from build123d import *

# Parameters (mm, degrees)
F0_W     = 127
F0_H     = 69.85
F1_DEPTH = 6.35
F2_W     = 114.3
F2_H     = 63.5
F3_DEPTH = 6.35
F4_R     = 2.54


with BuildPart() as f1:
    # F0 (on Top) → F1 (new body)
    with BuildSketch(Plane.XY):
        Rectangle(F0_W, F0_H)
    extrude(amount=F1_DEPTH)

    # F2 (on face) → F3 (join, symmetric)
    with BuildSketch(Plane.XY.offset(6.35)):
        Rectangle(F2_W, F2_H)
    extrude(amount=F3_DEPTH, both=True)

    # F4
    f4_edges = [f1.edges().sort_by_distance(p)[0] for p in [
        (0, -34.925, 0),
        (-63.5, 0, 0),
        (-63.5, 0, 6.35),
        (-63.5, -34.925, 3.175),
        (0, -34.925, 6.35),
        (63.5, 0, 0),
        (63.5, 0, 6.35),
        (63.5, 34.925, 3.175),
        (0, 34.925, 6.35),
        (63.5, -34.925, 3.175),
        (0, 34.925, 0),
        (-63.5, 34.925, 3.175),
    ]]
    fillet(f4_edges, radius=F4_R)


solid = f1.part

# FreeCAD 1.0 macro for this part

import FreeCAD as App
import Part
import Sketcher

V = App.Vector
Q = App.Units.Quantity


def edges_at(feature, points):
    """Names of the edges that pass closest to the given points."""
    edges = feature.Shape.Edges
    near = lambda p: min(range(len(edges)), key=lambda i: edges[i].distToShape(Part.Vertex(*p))[0])
    return sorted({f"Edge{near(p) + 1}" for p in points})


def add_polygon(sketch, points):
    """Adds a closed chain of lines whose ends are joined by coincident constraints."""
    first, n = sketch.GeometryCount, len(points)
    for a, b in zip(points, points[1:] + points[:1]):
        sketch.addGeometry(Part.LineSegment(App.Vector(*a, 0), App.Vector(*b, 0)), False)
    for i in range(n):
        sketch.addConstraint(Sketcher.Constraint("Coincident", first + i, 2, first + (i + 1) % n, 1))

doc = App.newDocument("Part")
body = doc.addObject("PartDesign::Body", "Body")

# Sketch on XY plane
sketch1 = body.newObject("Sketcher::SketchObject", "Sketch")
sketch1.AttachmentSupport = (doc.getObject("XY_Plane"), [""])
sketch1.MapMode = "FlatFace"
add_polygon(sketch1, [(-64, 35), (-64, -35), (64, -35), (64, 35)])  # lines 0-3
sketch1.addConstraint([
    Sketcher.Constraint("Vertical", 0),
    Sketcher.Constraint("Horizontal", 1),
    Sketcher.Constraint("Vertical", 2),
    Sketcher.Constraint("Horizontal", 3),
    Sketcher.Constraint("Symmetric", 0, 2, 2, 2, -1, 1),
    Sketcher.Constraint("DistanceX", 1, 1, 1, 2, Q("5 in")),
    Sketcher.Constraint("DistanceY", 0, 2, 0, 1, Q("2.75 in")),
])
pad1 = body.newObject("PartDesign::Pad", "Pad")
pad1.Profile = sketch1
pad1.Length = Q("0.25 in")

# Sketch on XY plane
sketch2 = body.newObject("Sketcher::SketchObject", "Sketch001")
sketch2.AttachmentSupport = (doc.getObject("XY_Plane"), [""])
sketch2.MapMode = "FlatFace"
sketch2.AttachmentOffset = App.Placement(V(0, 0, 0.25 * 25.4), App.Rotation())
add_polygon(sketch2, [(-57, 32), (-57, -32), (57, -32), (57, 32)])  # lines 0-3
sketch2.addConstraint([
    Sketcher.Constraint("Vertical", 0),
    Sketcher.Constraint("Horizontal", 1),
    Sketcher.Constraint("Vertical", 2),
    Sketcher.Constraint("Horizontal", 3),
    Sketcher.Constraint("Symmetric", 0, 2, 2, 2, -1, 1),
    Sketcher.Constraint("DistanceX", 1, 1, 1, 2, Q("4.5 in")),
    Sketcher.Constraint("DistanceY", 0, 2, 0, 1, Q("2.5 in")),
])
pad2 = body.newObject("PartDesign::Pad", "Pad001")
pad2.Profile = sketch2
pad2.Length = Q("0.5 in")
pad2.Midplane = True
doc.recompute()

fillet = body.newObject("PartDesign::Fillet", "Fillet")
fillet.Base = (pad2, edges_at(pad2, [
    (0, -34.925, 0),
    (-63.5, 0, 0),
    (-63.5, 0, 6.35),
    (-63.5, -34.925, 3.175),
    (0, -34.925, 6.35),
    (63.5, 0, 0),
    (63.5, 0, 6.35),
    (63.5, 34.925, 3.175),
    (0, 34.925, 6.35),
    (63.5, -34.925, 3.175),
    (0, 34.925, 0),
    (-63.5, 34.925, 3.175),
]))
fillet.Radius = Q("0.1 in")

doc.recompute()
